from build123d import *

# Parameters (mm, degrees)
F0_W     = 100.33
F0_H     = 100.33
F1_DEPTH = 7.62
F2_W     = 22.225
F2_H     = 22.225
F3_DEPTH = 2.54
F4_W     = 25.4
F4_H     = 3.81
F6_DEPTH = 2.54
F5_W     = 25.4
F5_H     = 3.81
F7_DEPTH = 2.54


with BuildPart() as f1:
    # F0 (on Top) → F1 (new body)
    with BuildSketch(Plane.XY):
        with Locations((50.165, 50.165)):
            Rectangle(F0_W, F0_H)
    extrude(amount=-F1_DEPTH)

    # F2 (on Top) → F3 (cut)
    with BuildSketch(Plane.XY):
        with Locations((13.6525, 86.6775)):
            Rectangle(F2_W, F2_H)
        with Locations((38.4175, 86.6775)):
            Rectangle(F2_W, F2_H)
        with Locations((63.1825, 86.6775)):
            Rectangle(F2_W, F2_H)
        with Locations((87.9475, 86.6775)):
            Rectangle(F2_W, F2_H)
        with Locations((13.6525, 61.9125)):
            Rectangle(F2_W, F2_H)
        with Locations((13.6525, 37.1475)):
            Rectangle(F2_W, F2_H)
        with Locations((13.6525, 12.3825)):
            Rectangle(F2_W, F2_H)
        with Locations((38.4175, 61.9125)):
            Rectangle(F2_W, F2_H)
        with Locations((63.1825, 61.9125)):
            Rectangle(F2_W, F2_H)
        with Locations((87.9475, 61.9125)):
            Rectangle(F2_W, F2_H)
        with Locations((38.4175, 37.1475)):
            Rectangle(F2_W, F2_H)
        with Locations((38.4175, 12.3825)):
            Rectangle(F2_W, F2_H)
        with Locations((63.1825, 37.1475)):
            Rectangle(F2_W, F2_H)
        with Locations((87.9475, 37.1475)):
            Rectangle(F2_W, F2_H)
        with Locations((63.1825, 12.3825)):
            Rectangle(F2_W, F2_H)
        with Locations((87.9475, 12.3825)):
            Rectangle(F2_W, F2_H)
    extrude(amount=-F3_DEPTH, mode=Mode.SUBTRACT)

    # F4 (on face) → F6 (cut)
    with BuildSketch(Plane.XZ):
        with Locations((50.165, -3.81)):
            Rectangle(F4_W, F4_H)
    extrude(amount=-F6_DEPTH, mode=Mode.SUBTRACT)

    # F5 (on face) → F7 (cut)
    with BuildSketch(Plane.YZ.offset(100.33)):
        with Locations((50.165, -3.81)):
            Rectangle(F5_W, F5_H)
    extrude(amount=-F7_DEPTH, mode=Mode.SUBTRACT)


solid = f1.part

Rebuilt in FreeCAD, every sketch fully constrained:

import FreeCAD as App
import Part
import Sketcher
from FreeCAD import Vector
Q = App.Units.Quantity


def add_polygon(sketch, points):
    """Adds a closed chain of lines whose ends are joined by coincident constraints."""
    first, n = sketch.GeometryCount, len(points)
    for a, b in zip(points, points[1:] + points[:1]):
        sketch.addGeometry(Part.LineSegment(App.Vector(*a, 0), App.Vector(*b, 0)), False)
    for i in range(n):
        sketch.addConstraint(Sketcher.Constraint("Coincident", first + i, 2, first + (i + 1) % n, 1))

doc = App.newDocument("Part")
body = doc.addObject("PartDesign::Body", "Body")

sketch1 = body.newObject("Sketcher::SketchObject", "Sketch")
sketch1.AttachmentSupport = (doc.getObject("XY_Plane"), [""])
sketch1.MapMode = "FlatFace"
add_polygon(sketch1, [(0, 100), (0, 0), (100, 0), (100, 100)])
sketch1.addConstraint(Sketcher.Constraint("Vertical", 0))
sketch1.addConstraint(Sketcher.Constraint("Horizontal", 1))
sketch1.addConstraint(Sketcher.Constraint("Vertical", 2))
sketch1.addConstraint(Sketcher.Constraint("Horizontal", 3))
sketch1.addConstraint(Sketcher.Constraint("Coincident", 0, 2, -1, 1))
sketch1.addConstraint(Sketcher.Constraint("Equal", 3, 0))
sketch1.addConstraint(Sketcher.Constraint("DistanceX", 1, 1, 1, 2, Q("3.95 in")))
pad1 = body.newObject("PartDesign::Pad", "Pad")
pad1.Profile = sketch1
pad1.Length = Q("0.3 in")
pad1.Reversed = True

sketch2 = body.newObject("Sketcher::SketchObject", "Sketch001")
sketch2.AttachmentSupport = (doc.getObject("XY_Plane"), [""])
sketch2.MapMode = "FlatFace"
add_polygon(sketch2, [(3, 98), (3, 76), (25, 76), (25, 98)])
add_polygon(sketch2, [(27, 98), (27, 76), (50, 76), (50, 98)])
add_polygon(sketch2, [(52, 98), (52, 76), (74, 76), (74, 98)])
add_polygon(sketch2, [(77, 98), (77, 76), (99, 76), (99, 98)])
add_polygon(sketch2, [(3, 73), (3, 51), (25, 51), (25, 73)])
add_polygon(sketch2, [(3, 48), (3, 26), (25, 26), (25, 48)])
add_polygon(sketch2, [(3, 23), (3, 1), (25, 1), (25, 23)])
add_polygon(sketch2, [(27, 73), (27, 51), (50, 51), (50, 73)])
add_polygon(sketch2, [(52, 73), (52, 51), (74, 51), (74, 73)])
add_polygon(sketch2, [(77, 73), (77, 51), (99, 51), (99, 73)])
add_polygon(sketch2, [(27, 48), (27, 26), (50, 26), (50, 48)])
add_polygon(sketch2, [(27, 23), (27, 1), (50, 1), (50, 23)])
add_polygon(sketch2, [(52, 48), (52, 26), (74, 26), (74, 48)])
add_polygon(sketch2, [(77, 48), (77, 26), (99, 26), (99, 48)])
add_polygon(sketch2, [(52, 23), (52, 1), (74, 1), (74, 23)])
add_polygon(sketch2, [(77, 23), (77, 1), (99, 1), (99, 23)])
sketch2.addConstraint(Sketcher.Constraint("Vertical", 0))
sketch2.addConstraint(Sketcher.Constraint("Horizontal", 1))
sketch2.addConstraint(Sketcher.Constraint("Vertical", 2))
sketch2.addConstraint(Sketcher.Constraint("Horizontal", 3))
sketch2.addConstraint(Sketcher.Constraint("Vertical", 4))
sketch2.addConstraint(Sketcher.Constraint("Horizontal", 5))
sketch2.addConstraint(Sketcher.Constraint("Vertical", 6))
sketch2.addConstraint(Sketcher.Constraint("Horizontal", 7))
sketch2.addConstraint(Sketcher.Constraint("Vertical", 8))
sketch2.addConstraint(Sketcher.Constraint("Horizontal", 9))
sketch2.addConstraint(Sketcher.Constraint("Vertical", 10))
sketch2.addConstraint(Sketcher.Constraint("Horizontal", 11))
sketch2.addConstraint(Sketcher.Constraint("Vertical", 12))
sketch2.addConstraint(Sketcher.Constraint("Horizontal", 13))
sketch2.addConstraint(Sketcher.Constraint("Vertical", 14))
sketch2.addConstraint(Sketcher.Constraint("Horizontal", 15))
sketch2.addConstraint(Sketcher.Constraint("Vertical", 16))
sketch2.addConstraint(Sketcher.Constraint("Horizontal", 17))
sketch2.addConstraint(Sketcher.Constraint("Vertical", 18))
sketch2.addConstraint(Sketcher.Constraint("Horizontal", 19))
sketch2.addConstraint(Sketcher.Constraint("Vertical", 20))
sketch2.addConstraint(Sketcher.Constraint("Horizontal", 21))
sketch2.addConstraint(Sketcher.Constraint("Vertical", 22))
sketch2.addConstraint(Sketcher.Constraint("Horizontal", 23))
sketch2.addConstraint(Sketcher.Constraint("Vertical", 24))
sketch2.addConstraint(Sketcher.Constraint("Horizontal", 25))
sketch2.addConstraint(Sketcher.Constraint("Vertical", 26))
sketch2.addConstraint(Sketcher.Constraint("Horizontal", 27))
sketch2.addConstraint(Sketcher.Constraint("Vertical", 28))
sketch2.addConstraint(Sketcher.Constraint("Horizontal", 29))
sketch2.addConstraint(Sketcher.Constraint("Vertical", 30))
sketch2.addConstraint(Sketcher.Constraint("Horizontal", 31))
sketch2.addConstraint(Sketcher.Constraint("Vertical", 32))
sketch2.addConstraint(Sketcher.Constraint("Horizontal", 33))
sketch2.addConstraint(Sketcher.Constraint("Vertical", 34))
sketch2.addConstraint(Sketcher.Constraint("Horizontal", 35))
sketch2.addConstraint(Sketcher.Constraint("Vertical", 36))
sketch2.addConstraint(Sketcher.Constraint("Horizontal", 37))
sketch2.addConstraint(Sketcher.Constraint("Vertical", 38))
sketch2.addConstraint(Sketcher.Constraint("Horizontal", 39))
sketch2.addConstraint(Sketcher.Constraint("Vertical", 40))
sketch2.addConstraint(Sketcher.Constraint("Horizontal", 41))
sketch2.addConstraint(Sketcher.Constraint("Vertical", 42))
sketch2.addConstraint(Sketcher.Constraint("Horizontal", 43))
sketch2.addConstraint(Sketcher.Constraint("Vertical", 44))
sketch2.addConstraint(Sketcher.Constraint("Horizontal", 45))
sketch2.addConstraint(Sketcher.Constraint("Vertical", 46))
sketch2.addConstraint(Sketcher.Constraint("Horizontal", 47))
sketch2.addConstraint(Sketcher.Constraint("Vertical", 48))
sketch2.addConstraint(Sketcher.Constraint("Horizontal", 49))
sketch2.addConstraint(Sketcher.Constraint("Vertical", 50))
sketch2.addConstraint(Sketcher.Constraint("Horizontal", 51))
sketch2.addConstraint(Sketcher.Constraint("Vertical", 52))
sketch2.addConstraint(Sketcher.Constraint("Horizontal", 53))
sketch2.addConstraint(Sketcher.Constraint("Vertical", 54))
sketch2.addConstraint(Sketcher.Constraint("Horizontal", 55))
sketch2.addConstraint(Sketcher.Constraint("Vertical", 56))
sketch2.addConstraint(Sketcher.Constraint("Horizontal", 57))
sketch2.addConstraint(Sketcher.Constraint("Vertical", 58))
sketch2.addConstraint(Sketcher.Constraint("Horizontal", 59))
sketch2.addConstraint(Sketcher.Constraint("Vertical", 60))
sketch2.addConstraint(Sketcher.Constraint("Horizontal", 61))
sketch2.addConstraint(Sketcher.Constraint("Vertical", 62))
sketch2.addConstraint(Sketcher.Constraint("Horizontal", 63))
sketch2.addConstraint(Sketcher.Constraint("Horizontal", 1, 2, 4, 2))
sketch2.addConstraint(Sketcher.Constraint("Horizontal", 3, 2, 6, 2))
sketch2.addConstraint(Sketcher.Constraint("Horizontal", 5, 2, 8, 2))
sketch2.addConstraint(Sketcher.Constraint("Horizontal", 7, 2, 10, 2))
sketch2.addConstraint(Sketcher.Constraint("Horizontal", 9, 2, 12, 2))
sketch2.addConstraint(Sketcher.Constraint("Horizontal", 11, 2, 14, 2))
sketch2.addConstraint(Sketcher.Constraint("Horizontal", 17, 2, 28, 2))
sketch2.addConstraint(Sketcher.Constraint("Horizontal", 19, 2, 30, 2))
sketch2.addConstraint(Sketcher.Constraint("Horizontal", 29, 2, 32, 2))
sketch2.addConstraint(Sketcher.Constraint("Horizontal", 31, 2, 34, 2))
sketch2.addConstraint(Sketcher.Constraint("Horizontal", 33, 2, 36, 2))
sketch2.addConstraint(Sketcher.Constraint("Horizontal", 35, 2, 38, 2))
sketch2.addConstraint(Sketcher.Constraint("Horizontal", 21, 2, 40, 2))
sketch2.addConstraint(Sketcher.Constraint("Horizontal", 23, 2, 42, 2))
sketch2.addConstraint(Sketcher.Constraint("Horizontal", 25, 2, 44, 2))
sketch2.addConstraint(Sketcher.Constraint("Horizontal", 27, 2, 46, 2))
sketch2.addConstraint(Sketcher.Constraint("Horizontal", 41, 2, 48, 2))
sketch2.addConstraint(Sketcher.Constraint("Horizontal", 43, 2, 50, 2))
sketch2.addConstraint(Sketcher.Constraint("Horizontal", 49, 2, 52, 2))
sketch2.addConstraint(Sketcher.Constraint("Horizontal", 51, 2, 54, 2))
sketch2.addConstraint(Sketcher.Constraint("Horizontal", 45, 2, 56, 2))
sketch2.addConstraint(Sketcher.Constraint("Horizontal", 47, 2, 58, 2))
sketch2.addConstraint(Sketcher.Constraint("Horizontal", 57, 2, 60, 2))
sketch2.addConstraint(Sketcher.Constraint("Horizontal", 59, 2, 62, 2))
sketch2.addConstraint(Sketcher.Constraint("Vertical", 3, 2, 16, 2))
sketch2.addConstraint(Sketcher.Constraint("Vertical", 2, 2, 17, 2))
sketch2.addConstraint(Sketcher.Constraint("Vertical", 19, 2, 20, 2))
sketch2.addConstraint(Sketcher.Constraint("Vertical", 18, 2, 21, 2))
sketch2.addConstraint(Sketcher.Constraint("Vertical", 23, 2, 24, 2))
sketch2.addConstraint(Sketcher.Constraint("Vertical", 22, 2, 25, 2))
sketch2.addConstraint(Sketcher.Constraint("Vertical", 7, 2, 28, 2))
sketch2.addConstraint(Sketcher.Constraint("Vertical", 6, 2, 29, 2))
sketch2.addConstraint(Sketcher.Constraint("Vertical", 11, 2, 32, 2))
sketch2.addConstraint(Sketcher.Constraint("Vertical", 10, 2, 33, 2))
sketch2.addConstraint(Sketcher.Constraint("Vertical", 15, 2, 36, 2))
sketch2.addConstraint(Sketcher.Constraint("Vertical", 14, 2, 37, 2))
sketch2.addConstraint(Sketcher.Constraint("Vertical", 31, 2, 40, 2))
sketch2.addConstraint(Sketcher.Constraint("Vertical", 30, 2, 41, 2))
sketch2.addConstraint(Sketcher.Constraint("Vertical", 43, 2, 44, 2))
sketch2.addConstraint(Sketcher.Constraint("Vertical", 42, 2, 45, 2))
sketch2.addConstraint(Sketcher.Constraint("Vertical", 35, 2, 48, 2))
sketch2.addConstraint(Sketcher.Constraint("Vertical", 34, 2, 49, 2))
sketch2.addConstraint(Sketcher.Constraint("Vertical", 39, 2, 52, 2))
sketch2.addConstraint(Sketcher.Constraint("Vertical", 38, 2, 53, 2))
sketch2.addConstraint(Sketcher.Constraint("Vertical", 51, 2, 56, 2))
sketch2.addConstraint(Sketcher.Constraint("Vertical", 50, 2, 57, 2))
sketch2.addConstraint(Sketcher.Constraint("Vertical", 55, 2, 60, 2))
sketch2.addConstraint(Sketcher.Constraint("Vertical", 54, 2, 61, 2))
sketch2.addConstraint(Sketcher.Constraint("Equal", 3, 5))
sketch2.addConstraint(Sketcher.Constraint("Equal", 7, 9))
sketch2.addConstraint(Sketcher.Constraint("Equal", 11, 13))
sketch2.addConstraint(Sketcher.Constraint("Equal", 63, 0))
sketch2.addConstraint(Sketcher.Constraint("Equal", 14, 16))
sketch2.addConstraint(Sketcher.Constraint("Equal", 18, 20))
sketch2.addConstraint(Sketcher.Constraint("Equal", 22, 24))
sketch2.addConstraint(Sketcher.Constraint("DistanceY", -1, 1, 16, 2, Q("2 in")))
sketch2.addConstraint(Sketcher.Constraint("DistanceX", -1, 1, 0, 2, Q("0.1 in")))
sketch2.addConstraint(Sketcher.Constraint("DistanceX", -1, 1, 13, 2, Q("3.9 in")))
sketch2.addConstraint(Sketcher.Constraint("DistanceY", -1, 1, 22, 2, Q("1.9 in")))
sketch2.addConstraint(Sketcher.Constraint("DistanceX", 1, 1, 1, 2, Q("0.875 in")))
sketch2.addConstraint(Sketcher.Constraint("DistanceY", -1, 1, 2, 2, Q("3.85 in")))
sketch2.addConstraint(Sketcher.Constraint("DistanceX", -1, 1, 5, 2, Q("1.95 in")))
sketch2.addConstraint(Sketcher.Constraint("DistanceX", -1, 1, 8, 2, Q("2.05 in")))
sketch2.addConstraint(Sketcher.Constraint("DistanceY", -1, 1, 24, 2, Q("0.05 in")))
pocket1 = body.newObject("PartDesign::Pocket", "Pocket")
pocket1.Profile = sketch2
pocket1.Length = Q("0.1 in")

sketch3 = body.newObject("Sketcher::SketchObject", "Sketch002")
sketch3.AttachmentSupport = (doc.getObject("XZ_Plane"), [""])
sketch3.MapMode = "FlatFace"
add_polygon(sketch3, [(37.5, -1.9), (37.5, -5.7), (62.9, -5.7), (62.9, -1.9)])
sketch3.addConstraint(Sketcher.Constraint("Vertical", 0))
sketch3.addConstraint(Sketcher.Constraint("Horizontal", 1))
sketch3.addConstraint(Sketcher.Constraint("Vertical", 2))
sketch3.addConstraint(Sketcher.Constraint("Horizontal", 3))
sketch3.addConstraint(Sketcher.Constraint("DistanceX", 1, 1, 1, 2, Q("1 in")))
sketch3.addConstraint(Sketcher.Constraint("DistanceY", 0, 2, 0, 1, Q("0.15 in")))
sketch3.addConstraint(Sketcher.Constraint("DistanceX", -1, 1, 0, 2, Q("1.475 in")))
sketch3.addConstraint(Sketcher.Constraint("DistanceY", 0, 2, -1, 1, Q("0.225 in")))
pocket2 = body.newObject("PartDesign::Pocket", "Pocket001")
pocket2.Profile = sketch3
pocket2.Length = Q("0.1 in")

sketch4 = body.newObject("Sketcher::SketchObject", "Sketch003")
sketch4.AttachmentSupport = (doc.getObject("YZ_Plane"), [""])
sketch4.MapMode = "FlatFace"
sketch4.AttachmentOffset = App.Placement(Vector(0, 0, 3.95 * 25.4), App.Rotation())
add_polygon(sketch4, [(37.5, -1.9), (37.5, -5.7), (62.9, -5.7), (62.9, -1.9)])
sketch4.addConstraint(Sketcher.Constraint("Vertical", 0))
sketch4.addConstraint(Sketcher.Constraint("Horizontal", 1))
sketch4.addConstraint(Sketcher.Constraint("Vertical", 2))
sketch4.addConstraint(Sketcher.Constraint("Horizontal", 3))
sketch4.addConstraint(Sketcher.Constraint("DistanceX", 1, 1, 1, 2, Q("1 in")))
sketch4.addConstraint(Sketcher.Constraint("DistanceY", 0, 2, 0, 1, Q("0.15 in")))
sketch4.addConstraint(Sketcher.Constraint("DistanceX", -1, 1, 0, 2, Q("1.475 in")))
sketch4.addConstraint(Sketcher.Constraint("DistanceY", 0, 2, -1, 1, Q("0.225 in")))
pocket3 = body.newObject("PartDesign::Pocket", "Pocket002")
pocket3.Profile = sketch4
pocket3.Length = Q("0.1 in")

doc.recompute()
